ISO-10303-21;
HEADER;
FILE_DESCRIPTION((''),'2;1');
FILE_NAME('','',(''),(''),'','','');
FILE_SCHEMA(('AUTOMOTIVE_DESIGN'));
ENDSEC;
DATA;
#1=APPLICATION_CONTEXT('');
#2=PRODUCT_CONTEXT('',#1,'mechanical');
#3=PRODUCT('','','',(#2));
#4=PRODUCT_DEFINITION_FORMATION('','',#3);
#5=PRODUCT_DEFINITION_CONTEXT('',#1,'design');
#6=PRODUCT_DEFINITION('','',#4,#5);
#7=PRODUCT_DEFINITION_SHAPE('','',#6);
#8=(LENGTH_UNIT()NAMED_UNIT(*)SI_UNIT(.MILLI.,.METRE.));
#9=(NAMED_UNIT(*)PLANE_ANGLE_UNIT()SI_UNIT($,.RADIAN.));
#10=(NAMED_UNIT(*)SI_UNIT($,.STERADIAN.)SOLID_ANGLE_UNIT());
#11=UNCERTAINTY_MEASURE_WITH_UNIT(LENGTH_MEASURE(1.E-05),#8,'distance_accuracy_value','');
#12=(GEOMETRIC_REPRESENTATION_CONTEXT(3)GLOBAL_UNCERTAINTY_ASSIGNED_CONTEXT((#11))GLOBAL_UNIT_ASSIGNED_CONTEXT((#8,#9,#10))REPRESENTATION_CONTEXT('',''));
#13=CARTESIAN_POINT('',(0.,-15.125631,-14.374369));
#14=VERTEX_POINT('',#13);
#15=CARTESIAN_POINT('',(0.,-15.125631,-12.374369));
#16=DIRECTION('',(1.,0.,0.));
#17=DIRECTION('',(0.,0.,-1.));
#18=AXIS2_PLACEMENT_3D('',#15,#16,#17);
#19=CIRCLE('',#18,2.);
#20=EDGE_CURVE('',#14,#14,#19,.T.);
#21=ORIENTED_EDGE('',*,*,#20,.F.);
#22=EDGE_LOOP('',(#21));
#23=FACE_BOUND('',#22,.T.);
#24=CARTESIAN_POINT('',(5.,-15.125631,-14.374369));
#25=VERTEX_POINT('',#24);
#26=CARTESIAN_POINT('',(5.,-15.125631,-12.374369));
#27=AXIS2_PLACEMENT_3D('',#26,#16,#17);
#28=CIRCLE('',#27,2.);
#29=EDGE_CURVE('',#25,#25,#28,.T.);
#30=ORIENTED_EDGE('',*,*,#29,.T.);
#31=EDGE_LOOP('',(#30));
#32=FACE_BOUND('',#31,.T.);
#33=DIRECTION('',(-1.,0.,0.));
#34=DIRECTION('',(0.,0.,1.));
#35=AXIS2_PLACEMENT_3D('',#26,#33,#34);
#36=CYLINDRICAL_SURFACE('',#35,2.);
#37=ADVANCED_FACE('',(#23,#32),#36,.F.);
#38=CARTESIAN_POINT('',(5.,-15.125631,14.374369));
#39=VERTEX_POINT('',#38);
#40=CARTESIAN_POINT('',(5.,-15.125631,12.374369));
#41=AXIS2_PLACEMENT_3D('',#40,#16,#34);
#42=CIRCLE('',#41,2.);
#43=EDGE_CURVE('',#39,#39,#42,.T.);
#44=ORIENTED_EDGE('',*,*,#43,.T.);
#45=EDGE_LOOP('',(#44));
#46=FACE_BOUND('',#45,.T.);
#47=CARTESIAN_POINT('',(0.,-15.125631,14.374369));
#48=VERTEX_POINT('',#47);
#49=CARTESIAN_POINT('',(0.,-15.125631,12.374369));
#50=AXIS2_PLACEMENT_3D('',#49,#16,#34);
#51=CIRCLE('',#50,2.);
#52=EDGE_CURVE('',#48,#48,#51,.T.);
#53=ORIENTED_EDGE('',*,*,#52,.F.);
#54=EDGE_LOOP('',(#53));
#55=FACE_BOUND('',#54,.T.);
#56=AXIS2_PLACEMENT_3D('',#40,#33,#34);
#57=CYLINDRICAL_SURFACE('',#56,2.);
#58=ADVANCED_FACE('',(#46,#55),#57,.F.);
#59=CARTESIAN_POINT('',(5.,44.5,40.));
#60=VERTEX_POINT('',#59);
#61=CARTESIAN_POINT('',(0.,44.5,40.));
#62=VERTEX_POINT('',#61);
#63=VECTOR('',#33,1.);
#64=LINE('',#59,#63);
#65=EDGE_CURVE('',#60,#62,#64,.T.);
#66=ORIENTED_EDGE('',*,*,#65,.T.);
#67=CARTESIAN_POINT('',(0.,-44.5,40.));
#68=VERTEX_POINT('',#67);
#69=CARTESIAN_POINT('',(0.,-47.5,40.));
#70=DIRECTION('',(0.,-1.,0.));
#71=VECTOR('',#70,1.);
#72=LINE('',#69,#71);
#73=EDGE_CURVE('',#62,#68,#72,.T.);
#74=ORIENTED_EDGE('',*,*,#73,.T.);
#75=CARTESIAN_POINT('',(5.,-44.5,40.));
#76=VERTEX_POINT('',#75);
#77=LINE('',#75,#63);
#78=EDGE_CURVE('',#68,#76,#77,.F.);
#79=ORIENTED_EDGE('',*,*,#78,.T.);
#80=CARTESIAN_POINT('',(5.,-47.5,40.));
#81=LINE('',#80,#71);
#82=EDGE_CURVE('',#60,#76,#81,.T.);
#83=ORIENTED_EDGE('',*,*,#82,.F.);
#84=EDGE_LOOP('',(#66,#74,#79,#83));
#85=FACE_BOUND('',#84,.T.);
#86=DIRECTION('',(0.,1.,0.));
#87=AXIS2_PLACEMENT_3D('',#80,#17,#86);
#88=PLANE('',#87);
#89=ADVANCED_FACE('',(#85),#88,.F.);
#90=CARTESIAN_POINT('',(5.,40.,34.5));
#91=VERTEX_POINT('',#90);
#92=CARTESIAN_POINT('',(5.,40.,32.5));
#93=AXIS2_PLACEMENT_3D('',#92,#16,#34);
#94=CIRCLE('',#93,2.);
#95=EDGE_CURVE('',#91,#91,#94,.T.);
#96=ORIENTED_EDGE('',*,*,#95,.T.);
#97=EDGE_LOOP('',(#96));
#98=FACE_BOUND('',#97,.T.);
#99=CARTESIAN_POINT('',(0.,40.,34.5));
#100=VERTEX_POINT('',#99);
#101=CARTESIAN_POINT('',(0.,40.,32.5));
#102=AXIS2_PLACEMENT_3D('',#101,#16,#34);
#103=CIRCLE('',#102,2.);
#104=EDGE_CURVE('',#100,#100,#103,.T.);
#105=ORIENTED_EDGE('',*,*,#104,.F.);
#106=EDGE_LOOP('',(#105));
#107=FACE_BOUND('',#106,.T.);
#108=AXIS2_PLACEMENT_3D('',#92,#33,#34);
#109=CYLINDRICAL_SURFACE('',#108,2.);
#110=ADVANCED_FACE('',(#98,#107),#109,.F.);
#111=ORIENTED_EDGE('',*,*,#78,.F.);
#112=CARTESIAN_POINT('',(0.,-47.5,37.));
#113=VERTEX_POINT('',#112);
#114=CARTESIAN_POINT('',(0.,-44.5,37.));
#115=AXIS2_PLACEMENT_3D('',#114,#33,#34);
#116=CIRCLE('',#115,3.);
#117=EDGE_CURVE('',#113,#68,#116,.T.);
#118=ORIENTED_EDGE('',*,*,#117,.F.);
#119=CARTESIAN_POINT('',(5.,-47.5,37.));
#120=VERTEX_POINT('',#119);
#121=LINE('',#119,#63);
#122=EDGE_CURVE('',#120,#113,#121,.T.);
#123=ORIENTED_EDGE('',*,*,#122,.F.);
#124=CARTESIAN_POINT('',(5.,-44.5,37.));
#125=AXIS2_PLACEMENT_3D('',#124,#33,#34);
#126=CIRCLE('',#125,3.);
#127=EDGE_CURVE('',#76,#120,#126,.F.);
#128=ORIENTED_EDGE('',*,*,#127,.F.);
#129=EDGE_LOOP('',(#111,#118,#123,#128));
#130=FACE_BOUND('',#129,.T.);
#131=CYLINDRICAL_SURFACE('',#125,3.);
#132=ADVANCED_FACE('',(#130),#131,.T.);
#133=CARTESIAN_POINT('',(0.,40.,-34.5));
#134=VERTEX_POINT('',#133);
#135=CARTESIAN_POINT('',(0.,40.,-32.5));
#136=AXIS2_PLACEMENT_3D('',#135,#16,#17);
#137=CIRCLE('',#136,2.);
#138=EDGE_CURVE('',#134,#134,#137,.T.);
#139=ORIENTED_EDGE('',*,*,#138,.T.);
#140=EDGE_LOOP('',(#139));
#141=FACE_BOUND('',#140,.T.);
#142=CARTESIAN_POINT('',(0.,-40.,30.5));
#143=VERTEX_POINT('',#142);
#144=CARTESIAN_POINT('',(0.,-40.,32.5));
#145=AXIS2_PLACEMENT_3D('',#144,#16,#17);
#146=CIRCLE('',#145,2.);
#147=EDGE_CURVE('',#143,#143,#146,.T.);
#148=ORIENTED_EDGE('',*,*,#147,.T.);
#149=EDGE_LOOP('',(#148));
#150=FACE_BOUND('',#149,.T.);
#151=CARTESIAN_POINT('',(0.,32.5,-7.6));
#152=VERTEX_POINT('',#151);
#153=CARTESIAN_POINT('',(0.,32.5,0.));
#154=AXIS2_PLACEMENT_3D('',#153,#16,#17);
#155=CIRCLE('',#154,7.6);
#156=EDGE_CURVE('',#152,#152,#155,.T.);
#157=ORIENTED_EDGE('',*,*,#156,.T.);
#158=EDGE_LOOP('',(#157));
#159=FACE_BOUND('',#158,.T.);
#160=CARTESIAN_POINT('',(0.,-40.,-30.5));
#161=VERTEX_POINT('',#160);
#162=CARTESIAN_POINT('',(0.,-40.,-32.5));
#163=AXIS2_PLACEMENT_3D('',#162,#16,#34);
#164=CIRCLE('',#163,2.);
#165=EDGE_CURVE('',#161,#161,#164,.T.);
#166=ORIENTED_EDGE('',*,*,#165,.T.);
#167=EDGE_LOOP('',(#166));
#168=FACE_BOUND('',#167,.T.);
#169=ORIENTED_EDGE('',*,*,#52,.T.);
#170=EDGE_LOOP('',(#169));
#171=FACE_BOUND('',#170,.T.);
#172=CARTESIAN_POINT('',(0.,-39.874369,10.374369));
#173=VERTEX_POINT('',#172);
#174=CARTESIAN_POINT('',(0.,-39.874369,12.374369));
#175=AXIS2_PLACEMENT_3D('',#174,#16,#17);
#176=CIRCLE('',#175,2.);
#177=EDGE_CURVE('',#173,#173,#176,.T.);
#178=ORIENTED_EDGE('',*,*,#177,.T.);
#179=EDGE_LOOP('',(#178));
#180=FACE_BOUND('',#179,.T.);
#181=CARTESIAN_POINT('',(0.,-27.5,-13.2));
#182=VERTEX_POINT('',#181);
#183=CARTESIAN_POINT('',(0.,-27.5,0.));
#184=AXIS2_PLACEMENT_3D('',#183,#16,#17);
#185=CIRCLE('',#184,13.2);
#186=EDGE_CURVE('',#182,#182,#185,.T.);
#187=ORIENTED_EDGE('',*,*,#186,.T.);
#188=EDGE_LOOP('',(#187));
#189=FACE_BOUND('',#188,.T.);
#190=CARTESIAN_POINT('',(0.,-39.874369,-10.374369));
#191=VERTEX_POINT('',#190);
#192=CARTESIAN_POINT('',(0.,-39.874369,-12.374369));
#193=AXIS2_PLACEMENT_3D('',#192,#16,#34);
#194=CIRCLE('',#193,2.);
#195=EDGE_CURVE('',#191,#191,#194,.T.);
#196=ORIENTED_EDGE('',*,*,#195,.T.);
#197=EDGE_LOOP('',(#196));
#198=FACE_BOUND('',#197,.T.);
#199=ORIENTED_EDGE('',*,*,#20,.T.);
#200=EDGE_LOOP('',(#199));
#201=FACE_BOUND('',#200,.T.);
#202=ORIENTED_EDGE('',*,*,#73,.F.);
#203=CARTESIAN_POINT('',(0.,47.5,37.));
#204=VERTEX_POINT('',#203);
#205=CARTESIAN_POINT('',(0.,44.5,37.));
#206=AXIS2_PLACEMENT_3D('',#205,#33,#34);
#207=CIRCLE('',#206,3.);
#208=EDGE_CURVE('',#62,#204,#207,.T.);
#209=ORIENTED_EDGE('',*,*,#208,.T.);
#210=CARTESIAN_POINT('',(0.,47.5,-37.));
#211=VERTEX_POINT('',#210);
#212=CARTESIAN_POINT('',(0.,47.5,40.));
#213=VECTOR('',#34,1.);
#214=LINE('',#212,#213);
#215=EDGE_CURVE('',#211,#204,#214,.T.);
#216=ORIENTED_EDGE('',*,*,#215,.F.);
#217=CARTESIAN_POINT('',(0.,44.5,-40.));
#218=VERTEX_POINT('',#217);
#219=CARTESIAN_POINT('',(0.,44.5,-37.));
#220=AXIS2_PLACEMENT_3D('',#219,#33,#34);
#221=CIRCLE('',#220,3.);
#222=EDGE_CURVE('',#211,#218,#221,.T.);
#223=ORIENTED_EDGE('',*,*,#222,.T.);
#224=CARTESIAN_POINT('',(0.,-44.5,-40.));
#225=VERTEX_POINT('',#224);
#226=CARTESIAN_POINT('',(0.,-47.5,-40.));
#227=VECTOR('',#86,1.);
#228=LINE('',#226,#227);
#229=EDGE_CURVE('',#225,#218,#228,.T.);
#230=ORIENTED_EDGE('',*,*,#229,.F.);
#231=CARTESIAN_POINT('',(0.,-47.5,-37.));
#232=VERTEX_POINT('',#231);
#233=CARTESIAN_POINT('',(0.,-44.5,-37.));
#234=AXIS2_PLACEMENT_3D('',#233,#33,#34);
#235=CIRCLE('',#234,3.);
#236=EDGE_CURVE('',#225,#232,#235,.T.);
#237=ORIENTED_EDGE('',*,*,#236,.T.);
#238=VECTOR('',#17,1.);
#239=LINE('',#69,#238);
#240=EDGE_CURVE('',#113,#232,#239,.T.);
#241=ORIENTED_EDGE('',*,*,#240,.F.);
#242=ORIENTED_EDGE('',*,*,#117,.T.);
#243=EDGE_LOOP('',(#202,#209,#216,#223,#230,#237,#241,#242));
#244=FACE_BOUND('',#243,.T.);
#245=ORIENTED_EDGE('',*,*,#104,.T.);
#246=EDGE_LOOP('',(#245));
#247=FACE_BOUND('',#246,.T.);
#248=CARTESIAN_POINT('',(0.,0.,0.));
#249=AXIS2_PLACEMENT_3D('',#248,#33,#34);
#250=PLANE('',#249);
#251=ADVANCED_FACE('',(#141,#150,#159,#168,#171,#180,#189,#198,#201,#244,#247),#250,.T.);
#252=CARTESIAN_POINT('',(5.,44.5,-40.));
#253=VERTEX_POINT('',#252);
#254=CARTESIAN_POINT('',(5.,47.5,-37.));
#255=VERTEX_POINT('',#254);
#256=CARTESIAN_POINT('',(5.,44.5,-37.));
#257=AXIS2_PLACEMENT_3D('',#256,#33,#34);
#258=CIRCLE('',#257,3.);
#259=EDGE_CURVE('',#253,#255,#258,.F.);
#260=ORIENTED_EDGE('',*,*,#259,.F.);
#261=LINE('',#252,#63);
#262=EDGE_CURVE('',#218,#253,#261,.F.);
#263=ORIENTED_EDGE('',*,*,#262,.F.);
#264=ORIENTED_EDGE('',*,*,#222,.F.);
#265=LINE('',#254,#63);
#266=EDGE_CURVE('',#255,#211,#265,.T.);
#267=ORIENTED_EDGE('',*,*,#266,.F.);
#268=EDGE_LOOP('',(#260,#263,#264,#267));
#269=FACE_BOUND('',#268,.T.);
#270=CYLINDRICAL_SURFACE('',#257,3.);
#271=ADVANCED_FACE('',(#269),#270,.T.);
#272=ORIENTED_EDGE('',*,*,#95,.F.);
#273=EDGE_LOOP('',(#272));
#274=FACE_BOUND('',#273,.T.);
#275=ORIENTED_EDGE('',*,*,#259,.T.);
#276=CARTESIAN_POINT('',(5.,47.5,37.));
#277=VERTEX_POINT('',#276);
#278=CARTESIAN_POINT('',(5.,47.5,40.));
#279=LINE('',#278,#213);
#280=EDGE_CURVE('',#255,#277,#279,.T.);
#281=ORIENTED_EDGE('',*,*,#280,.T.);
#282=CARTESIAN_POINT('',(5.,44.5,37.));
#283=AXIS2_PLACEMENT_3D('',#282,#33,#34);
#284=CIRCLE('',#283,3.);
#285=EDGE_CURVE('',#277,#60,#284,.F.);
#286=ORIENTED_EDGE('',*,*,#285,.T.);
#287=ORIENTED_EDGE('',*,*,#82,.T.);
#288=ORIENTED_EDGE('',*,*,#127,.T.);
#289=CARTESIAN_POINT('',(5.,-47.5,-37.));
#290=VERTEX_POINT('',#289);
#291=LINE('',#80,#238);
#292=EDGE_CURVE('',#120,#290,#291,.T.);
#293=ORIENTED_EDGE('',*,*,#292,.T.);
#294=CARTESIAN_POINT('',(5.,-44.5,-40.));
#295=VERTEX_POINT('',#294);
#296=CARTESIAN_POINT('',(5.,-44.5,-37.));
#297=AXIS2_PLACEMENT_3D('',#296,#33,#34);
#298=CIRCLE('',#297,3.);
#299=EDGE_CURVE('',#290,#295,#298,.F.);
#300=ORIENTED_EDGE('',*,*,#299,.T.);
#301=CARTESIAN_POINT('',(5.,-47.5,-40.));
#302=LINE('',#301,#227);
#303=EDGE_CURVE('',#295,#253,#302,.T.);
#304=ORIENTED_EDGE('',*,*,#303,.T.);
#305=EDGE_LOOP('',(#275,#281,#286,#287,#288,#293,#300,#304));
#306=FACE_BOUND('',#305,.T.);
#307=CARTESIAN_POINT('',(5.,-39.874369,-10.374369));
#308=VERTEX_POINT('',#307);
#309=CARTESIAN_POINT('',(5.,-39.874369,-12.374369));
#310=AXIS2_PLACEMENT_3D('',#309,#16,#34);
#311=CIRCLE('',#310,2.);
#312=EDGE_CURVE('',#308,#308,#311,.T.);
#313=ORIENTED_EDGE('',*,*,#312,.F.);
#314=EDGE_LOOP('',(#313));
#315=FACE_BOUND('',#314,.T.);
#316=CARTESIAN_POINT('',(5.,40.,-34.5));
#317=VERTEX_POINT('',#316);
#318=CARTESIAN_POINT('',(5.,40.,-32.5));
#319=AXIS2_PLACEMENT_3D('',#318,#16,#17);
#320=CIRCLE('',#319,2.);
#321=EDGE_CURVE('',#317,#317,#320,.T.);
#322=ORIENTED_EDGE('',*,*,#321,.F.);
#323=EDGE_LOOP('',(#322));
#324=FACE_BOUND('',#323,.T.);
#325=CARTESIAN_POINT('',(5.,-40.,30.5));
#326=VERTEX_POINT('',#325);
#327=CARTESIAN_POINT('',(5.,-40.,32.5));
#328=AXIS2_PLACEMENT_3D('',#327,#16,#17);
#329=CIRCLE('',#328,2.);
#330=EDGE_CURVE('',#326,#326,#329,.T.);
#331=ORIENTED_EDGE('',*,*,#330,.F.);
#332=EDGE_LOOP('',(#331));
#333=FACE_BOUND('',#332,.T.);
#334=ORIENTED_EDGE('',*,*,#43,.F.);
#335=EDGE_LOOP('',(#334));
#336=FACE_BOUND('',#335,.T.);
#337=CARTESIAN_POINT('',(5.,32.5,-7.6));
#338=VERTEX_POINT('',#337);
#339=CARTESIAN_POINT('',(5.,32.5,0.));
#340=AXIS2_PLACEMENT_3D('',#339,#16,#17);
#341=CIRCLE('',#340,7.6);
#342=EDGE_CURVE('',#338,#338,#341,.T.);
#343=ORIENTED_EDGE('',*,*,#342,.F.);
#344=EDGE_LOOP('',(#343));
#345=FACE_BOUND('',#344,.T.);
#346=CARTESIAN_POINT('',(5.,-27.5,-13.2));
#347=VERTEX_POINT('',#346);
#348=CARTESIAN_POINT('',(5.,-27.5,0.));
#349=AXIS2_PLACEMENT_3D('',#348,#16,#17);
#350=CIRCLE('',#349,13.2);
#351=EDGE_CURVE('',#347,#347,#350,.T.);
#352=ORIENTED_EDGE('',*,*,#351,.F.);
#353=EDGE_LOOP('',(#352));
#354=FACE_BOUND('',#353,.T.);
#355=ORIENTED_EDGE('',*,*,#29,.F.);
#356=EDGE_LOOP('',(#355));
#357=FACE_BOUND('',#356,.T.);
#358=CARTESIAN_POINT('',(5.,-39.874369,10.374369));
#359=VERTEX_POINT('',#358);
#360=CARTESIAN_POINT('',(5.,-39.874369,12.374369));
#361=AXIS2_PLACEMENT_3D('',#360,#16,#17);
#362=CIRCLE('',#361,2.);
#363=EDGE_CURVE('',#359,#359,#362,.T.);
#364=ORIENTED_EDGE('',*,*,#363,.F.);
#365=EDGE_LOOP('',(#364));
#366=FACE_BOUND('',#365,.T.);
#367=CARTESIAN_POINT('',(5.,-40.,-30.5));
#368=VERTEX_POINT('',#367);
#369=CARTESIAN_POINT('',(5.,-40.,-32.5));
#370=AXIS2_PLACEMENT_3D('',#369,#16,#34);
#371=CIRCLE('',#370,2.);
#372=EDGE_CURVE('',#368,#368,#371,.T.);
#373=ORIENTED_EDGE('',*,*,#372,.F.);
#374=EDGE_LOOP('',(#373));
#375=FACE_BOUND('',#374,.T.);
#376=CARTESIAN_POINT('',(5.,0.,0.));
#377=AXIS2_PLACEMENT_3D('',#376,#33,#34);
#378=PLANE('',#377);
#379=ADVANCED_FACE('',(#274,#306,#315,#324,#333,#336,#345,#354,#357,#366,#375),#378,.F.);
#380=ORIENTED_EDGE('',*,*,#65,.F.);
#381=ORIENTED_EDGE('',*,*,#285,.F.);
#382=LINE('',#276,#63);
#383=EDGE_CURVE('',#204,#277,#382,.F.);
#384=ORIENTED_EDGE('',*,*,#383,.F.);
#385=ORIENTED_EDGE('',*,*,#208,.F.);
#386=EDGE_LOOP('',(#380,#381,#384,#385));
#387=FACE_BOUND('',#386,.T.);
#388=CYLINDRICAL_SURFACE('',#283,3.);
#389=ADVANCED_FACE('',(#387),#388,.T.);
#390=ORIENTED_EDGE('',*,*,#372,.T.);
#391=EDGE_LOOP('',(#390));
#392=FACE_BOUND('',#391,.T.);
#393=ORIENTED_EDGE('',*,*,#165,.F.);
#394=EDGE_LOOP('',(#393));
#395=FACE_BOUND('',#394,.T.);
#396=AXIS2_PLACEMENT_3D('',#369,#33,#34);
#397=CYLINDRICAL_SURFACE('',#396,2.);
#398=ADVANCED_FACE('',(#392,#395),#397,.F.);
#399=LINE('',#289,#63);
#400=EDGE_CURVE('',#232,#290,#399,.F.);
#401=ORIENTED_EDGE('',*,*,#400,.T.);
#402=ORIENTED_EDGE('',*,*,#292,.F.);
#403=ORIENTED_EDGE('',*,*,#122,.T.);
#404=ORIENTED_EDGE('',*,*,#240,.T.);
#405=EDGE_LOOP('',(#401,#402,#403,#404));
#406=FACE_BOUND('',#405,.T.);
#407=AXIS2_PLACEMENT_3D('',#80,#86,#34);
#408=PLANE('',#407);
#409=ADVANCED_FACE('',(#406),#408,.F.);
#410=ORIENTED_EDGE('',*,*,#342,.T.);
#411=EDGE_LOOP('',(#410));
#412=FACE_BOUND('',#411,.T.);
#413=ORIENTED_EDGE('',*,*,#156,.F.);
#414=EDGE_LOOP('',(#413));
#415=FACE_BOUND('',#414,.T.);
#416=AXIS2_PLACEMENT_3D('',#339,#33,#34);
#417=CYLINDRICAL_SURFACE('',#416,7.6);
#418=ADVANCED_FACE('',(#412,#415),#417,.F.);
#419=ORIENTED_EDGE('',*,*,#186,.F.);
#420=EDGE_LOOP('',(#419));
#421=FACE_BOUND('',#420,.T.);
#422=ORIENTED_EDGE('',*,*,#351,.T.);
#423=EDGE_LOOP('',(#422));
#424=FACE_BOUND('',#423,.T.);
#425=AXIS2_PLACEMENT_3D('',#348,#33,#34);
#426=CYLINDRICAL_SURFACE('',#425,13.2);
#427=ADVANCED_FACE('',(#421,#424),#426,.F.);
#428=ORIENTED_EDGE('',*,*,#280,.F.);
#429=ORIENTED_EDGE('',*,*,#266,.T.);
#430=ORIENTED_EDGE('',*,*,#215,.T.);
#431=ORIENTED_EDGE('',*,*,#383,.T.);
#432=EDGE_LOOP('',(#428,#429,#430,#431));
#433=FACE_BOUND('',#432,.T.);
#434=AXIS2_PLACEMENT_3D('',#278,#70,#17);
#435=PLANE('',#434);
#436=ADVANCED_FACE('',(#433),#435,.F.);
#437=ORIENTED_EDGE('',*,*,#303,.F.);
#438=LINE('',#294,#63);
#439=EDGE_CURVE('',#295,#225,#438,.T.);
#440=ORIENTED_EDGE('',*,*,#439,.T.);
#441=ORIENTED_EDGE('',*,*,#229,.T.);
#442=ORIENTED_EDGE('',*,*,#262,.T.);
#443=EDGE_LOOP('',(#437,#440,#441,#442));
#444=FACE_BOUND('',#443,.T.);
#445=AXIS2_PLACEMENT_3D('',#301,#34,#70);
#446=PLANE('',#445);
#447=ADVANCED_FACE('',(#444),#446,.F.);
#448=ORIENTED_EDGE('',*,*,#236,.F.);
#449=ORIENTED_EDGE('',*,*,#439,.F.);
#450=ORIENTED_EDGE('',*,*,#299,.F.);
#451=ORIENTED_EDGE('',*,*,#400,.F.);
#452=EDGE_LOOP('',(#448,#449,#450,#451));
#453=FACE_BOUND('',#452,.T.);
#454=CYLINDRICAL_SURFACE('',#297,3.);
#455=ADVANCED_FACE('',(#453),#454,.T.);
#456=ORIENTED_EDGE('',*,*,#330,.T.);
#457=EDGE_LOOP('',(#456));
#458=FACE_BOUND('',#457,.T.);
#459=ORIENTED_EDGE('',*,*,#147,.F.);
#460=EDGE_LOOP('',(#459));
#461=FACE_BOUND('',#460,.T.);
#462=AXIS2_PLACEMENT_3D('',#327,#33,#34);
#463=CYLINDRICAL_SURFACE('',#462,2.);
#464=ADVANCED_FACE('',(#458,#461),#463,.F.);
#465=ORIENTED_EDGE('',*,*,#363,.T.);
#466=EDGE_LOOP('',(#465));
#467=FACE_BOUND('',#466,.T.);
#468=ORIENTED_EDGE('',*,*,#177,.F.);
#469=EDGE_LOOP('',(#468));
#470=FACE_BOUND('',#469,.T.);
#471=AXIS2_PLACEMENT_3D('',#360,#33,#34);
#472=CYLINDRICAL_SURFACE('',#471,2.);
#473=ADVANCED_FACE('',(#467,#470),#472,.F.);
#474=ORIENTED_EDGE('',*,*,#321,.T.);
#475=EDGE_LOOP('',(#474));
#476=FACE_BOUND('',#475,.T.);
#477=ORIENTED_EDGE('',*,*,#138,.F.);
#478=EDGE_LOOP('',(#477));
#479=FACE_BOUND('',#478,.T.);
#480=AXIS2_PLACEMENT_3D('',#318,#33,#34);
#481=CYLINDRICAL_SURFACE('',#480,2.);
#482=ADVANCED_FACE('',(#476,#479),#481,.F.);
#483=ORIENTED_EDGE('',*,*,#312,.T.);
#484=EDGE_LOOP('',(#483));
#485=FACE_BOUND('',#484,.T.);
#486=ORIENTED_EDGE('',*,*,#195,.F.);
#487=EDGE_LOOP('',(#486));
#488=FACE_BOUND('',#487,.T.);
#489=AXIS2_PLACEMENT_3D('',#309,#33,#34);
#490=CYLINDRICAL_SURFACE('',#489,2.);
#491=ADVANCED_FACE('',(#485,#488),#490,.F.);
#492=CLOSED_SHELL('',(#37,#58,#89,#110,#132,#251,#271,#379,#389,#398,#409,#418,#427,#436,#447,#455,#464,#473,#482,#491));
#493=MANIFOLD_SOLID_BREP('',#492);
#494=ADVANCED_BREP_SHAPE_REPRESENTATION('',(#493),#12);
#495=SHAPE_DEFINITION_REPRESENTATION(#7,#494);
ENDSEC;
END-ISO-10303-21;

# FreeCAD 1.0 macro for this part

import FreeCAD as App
import Part
import Sketcher

V = App.Vector


def edges_at(feature, points):
    """Names of the edges that pass closest to the given points."""
    edges = feature.Shape.Edges
    near = lambda p: min(range(len(edges)), key=lambda i: edges[i].distToShape(Part.Vertex(*p))[0])
    return sorted({f"Edge{near(p) + 1}" for p in points})


def add_polygon(sketch, points):
    """Adds a closed chain of lines whose ends are joined by coincident constraints."""
    first, n = sketch.GeometryCount, len(points)
    for a, b in zip(points, points[1:] + points[:1]):
        sketch.addGeometry(Part.LineSegment(App.Vector(*a, 0), App.Vector(*b, 0)), False)
    for i in range(n):
        sketch.addConstraint(Sketcher.Constraint("Coincident", first + i, 2, first + (i + 1) % n, 1))

doc = App.newDocument("Part")
body = doc.addObject("PartDesign::Body", "Body")

# Sketch on YZ plane
sketch1 = doc.addObject("Sketcher::SketchObject", "Sketch")
body.addObject(sketch1)
sketch1.AttachmentSupport = (doc.YZ_Plane, [""])
sketch1.MapMode = "FlatFace"
add_polygon(sketch1, [(47.5, 40), (-47.5, 40), (-47.5, -40), (47.5, -40)])  # lines 0-3
sketch1.addGeometry(Part.Circle(V(-40, 32.5, 0), V(0, 0, 1), 2), False)  # 4
sketch1.addGeometry(Part.Circle(V(-39.874369, 12.374369, 0), V(0, 0, 1), 2), False)  # 5
sketch1.addGeometry(Part.Circle(V(-15.125631, 12.374369, 0), V(0, 0, 1), 2), False)  # 6
sketch1.addGeometry(Part.Circle(V(-39.874369, -12.374369, 0), V(0, 0, 1), 2), False)  # 7
sketch1.addGeometry(Part.Circle(V(-27.5, 0, 0), V(0, 0, 1), 13.2), False)  # 8
sketch1.addGeometry(Part.Circle(V(-40, -32.5, 0), V(0, 0, 1), 2), False)  # 9
sketch1.addGeometry(Part.Circle(V(-15.125631, -12.374369, 0), V(0, 0, 1), 2), False)  # 10
sketch1.addGeometry(Part.Circle(V(40, 32.5, 0), V(0, 0, 1), 2), False)  # 11
sketch1.addGeometry(Part.Circle(V(32.5, 0, 0), V(0, 0, 1), 7.6), False)  # 12
sketch1.addGeometry(Part.Circle(V(40, -32.5, 0), V(0, 0, 1), 2), False)  # 13
sketch1.addConstraint([
    Sketcher.Constraint("Horizontal", 0),
    Sketcher.Constraint("Vertical", 1),
    Sketcher.Constraint("Horizontal", 2),
    Sketcher.Constraint("Vertical", 3),
    Sketcher.Constraint("Equal", 4, 5),
    Sketcher.Constraint("Equal", 5, 6),
    Sketcher.Constraint("Equal", 6, 7),
    Sketcher.Constraint("Equal", 7, 9),
    Sketcher.Constraint("Equal", 9, 10),
    Sketcher.Constraint("Equal", 10, 11),
    Sketcher.Constraint("Equal", 11, 13),
    Sketcher.Constraint("Symmetric", 9, 3, 11, 3, -1, 1),
    Sketcher.Constraint("Symmetric", 4, 3, 13, 3, -1, 1),
    Sketcher.Constraint("Symmetric", 0, 2, 2, 2, -1, 1),
    Sketcher.Constraint("Symmetric", 4, 3, 11, 3, -2),
    Sketcher.Constraint("Symmetric", 5, 3, 7, 3, -1),
    Sketcher.Constraint("Symmetric", 6, 3, 10, 3, -1),
    Sketcher.Constraint("PointOnObject", 8, 3, -1),
    Sketcher.Constraint("PointOnObject", 12, 3, -1),
    Sketcher.Constraint("Horizontal", 5, 3, 6, 3),
    Sketcher.Constraint("Diameter", 4, 4.0),
    Sketcher.Constraint("Diameter", 8, 26.4),
    Sketcher.Constraint("Diameter", 12, 15.2),
    Sketcher.Constraint("DistanceX", 0, 2, 0, 1, 95.0),
    Sketcher.Constraint("DistanceY", 1, 2, 1, 1, 80.0),
    Sketcher.Constraint("DistanceX", 4, 3, -1, 1, 40.0),
    Sketcher.Constraint("DistanceY", 9, 3, 4, 3, 65.0),
    Sketcher.Constraint("DistanceX", 8, 3, 12, 3, 60.0),
    Sketcher.Constraint("DistanceX", 0, 2, 8, 3, 20.0),
    Sketcher.Constraint("DistanceX", 5, 3, -1, 1, 39.874369),
    Sketcher.Constraint("DistanceY", -1, 1, 5, 3, 12.374369),
    Sketcher.Constraint("DistanceX", 6, 3, -1, 1, 15.125631),
])
pad1 = doc.addObject("PartDesign::Pad", "Pad")
body.addObject(pad1)
pad1.Profile = sketch1
pad1.Length = 5
doc.recompute()

fillet = doc.addObject("PartDesign::Fillet", "Fillet")
body.addObject(fillet)
fillet.Base = (pad1, edges_at(pad1, [
    (2.5, -47.5, -40),
    (2.5, -47.5, 40),
    (2.5, 47.5, 40),
    (2.5, 47.5, -40),
]))
fillet.Radius = 3

doc.recompute()
